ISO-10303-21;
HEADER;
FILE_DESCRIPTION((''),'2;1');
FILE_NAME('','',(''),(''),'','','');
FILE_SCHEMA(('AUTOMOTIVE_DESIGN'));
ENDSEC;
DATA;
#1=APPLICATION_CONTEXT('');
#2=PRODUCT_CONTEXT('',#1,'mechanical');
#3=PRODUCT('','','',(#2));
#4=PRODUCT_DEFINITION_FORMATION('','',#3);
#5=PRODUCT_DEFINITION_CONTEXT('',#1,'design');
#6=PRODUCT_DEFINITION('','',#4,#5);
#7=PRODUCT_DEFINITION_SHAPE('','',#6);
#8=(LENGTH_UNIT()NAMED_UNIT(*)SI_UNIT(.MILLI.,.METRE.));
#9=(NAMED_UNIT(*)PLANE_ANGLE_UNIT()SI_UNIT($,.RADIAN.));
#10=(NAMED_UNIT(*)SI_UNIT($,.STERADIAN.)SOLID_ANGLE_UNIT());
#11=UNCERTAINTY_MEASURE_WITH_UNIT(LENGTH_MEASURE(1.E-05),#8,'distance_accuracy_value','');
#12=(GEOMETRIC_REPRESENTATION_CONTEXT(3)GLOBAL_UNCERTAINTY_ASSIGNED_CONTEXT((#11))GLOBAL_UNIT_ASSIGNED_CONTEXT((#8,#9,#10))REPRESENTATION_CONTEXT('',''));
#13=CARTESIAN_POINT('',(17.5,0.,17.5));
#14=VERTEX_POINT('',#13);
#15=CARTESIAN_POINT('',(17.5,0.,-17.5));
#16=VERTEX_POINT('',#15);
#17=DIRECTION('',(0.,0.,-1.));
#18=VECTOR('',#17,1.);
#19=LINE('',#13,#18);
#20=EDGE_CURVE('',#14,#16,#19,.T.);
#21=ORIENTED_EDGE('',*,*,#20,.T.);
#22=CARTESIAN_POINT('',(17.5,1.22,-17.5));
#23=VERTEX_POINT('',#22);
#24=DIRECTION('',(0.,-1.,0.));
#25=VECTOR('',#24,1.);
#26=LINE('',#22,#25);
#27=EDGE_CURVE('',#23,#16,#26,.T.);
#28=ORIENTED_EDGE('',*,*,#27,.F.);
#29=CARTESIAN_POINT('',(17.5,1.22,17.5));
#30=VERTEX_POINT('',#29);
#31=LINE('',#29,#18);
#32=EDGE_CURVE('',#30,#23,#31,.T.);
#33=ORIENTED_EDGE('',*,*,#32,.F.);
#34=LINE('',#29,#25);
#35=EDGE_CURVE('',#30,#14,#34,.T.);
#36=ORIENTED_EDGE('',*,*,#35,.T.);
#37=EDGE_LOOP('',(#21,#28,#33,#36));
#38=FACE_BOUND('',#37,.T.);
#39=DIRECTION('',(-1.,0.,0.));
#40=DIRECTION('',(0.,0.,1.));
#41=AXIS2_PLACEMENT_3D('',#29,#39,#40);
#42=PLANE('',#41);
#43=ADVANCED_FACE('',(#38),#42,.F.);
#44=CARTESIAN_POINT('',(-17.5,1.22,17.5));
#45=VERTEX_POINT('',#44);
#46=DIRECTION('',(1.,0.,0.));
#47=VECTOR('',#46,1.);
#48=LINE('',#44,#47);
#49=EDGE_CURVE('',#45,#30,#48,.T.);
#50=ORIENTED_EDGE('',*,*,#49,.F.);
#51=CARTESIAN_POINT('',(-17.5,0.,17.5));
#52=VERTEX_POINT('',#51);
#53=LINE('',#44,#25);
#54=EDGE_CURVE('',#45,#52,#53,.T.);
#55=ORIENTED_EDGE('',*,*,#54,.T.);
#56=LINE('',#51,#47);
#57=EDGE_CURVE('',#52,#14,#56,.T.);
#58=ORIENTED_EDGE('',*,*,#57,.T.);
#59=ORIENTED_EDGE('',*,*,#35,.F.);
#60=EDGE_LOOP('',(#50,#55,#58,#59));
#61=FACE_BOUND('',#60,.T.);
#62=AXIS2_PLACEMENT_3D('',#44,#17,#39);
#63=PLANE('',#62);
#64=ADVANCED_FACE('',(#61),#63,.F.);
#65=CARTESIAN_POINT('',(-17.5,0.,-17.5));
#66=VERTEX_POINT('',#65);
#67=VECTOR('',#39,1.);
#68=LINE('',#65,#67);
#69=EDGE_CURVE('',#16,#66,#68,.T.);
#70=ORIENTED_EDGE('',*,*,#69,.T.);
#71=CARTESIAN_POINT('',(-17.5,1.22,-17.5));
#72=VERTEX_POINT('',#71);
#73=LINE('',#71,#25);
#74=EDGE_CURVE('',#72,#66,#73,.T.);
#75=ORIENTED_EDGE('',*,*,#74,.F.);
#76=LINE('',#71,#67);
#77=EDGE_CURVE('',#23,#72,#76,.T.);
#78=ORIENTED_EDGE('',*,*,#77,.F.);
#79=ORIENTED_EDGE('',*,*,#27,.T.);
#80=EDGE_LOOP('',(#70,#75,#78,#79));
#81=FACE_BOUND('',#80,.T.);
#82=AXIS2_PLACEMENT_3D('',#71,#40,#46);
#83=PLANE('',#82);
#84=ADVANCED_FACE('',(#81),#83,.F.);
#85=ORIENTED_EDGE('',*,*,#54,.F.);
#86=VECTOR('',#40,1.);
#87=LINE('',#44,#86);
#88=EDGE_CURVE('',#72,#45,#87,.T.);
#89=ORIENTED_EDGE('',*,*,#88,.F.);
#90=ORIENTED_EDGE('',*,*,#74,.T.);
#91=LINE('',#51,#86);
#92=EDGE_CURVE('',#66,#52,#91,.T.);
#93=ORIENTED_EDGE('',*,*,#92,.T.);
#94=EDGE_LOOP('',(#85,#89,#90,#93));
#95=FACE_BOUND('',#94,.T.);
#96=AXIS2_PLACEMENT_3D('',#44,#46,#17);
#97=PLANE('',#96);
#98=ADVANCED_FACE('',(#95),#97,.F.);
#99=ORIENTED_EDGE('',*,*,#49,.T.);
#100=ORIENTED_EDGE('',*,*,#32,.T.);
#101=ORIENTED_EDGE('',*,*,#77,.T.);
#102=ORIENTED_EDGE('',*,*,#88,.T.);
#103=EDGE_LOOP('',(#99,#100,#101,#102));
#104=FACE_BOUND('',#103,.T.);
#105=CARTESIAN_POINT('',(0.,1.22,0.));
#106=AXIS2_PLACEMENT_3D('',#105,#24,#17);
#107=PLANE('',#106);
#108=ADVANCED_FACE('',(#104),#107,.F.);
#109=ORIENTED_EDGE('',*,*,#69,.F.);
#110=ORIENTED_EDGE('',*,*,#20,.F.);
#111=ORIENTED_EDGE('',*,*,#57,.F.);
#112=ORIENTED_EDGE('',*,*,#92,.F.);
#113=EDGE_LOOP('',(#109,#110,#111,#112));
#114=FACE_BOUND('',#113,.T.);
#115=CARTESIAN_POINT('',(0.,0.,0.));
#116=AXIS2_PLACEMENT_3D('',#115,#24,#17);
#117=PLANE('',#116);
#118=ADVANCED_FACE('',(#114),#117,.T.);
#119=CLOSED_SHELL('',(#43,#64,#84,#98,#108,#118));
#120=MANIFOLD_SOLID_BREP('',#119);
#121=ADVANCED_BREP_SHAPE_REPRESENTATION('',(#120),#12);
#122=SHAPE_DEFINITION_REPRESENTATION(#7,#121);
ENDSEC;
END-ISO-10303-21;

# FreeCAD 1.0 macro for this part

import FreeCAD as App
import Part
import Sketcher
Q = App.Units.Quantity


def add_polygon(sketch, points):
    """Adds a closed chain of lines whose ends are joined by coincident constraints."""
    first, n = sketch.GeometryCount, len(points)
    for a, b in zip(points, points[1:] + points[:1]):
        sketch.addGeometry(Part.LineSegment(App.Vector(*a, 0), App.Vector(*b, 0)), False)
    for i in range(n):
        sketch.addConstraint(Sketcher.Constraint("Coincident", first + i, 2, first + (i + 1) % n, 1))

doc = App.newDocument("Part")
params = doc.addObject("Spreadsheet::Sheet", "Params")
for row, (alias, value) in enumerate([
    ("sketch1_width", "35 mm"),
    ("pad1_length", "1.22 mm"),
], start=1):
    params.set(f"A{row}", alias)
    params.set(f"B{row}", "=" + value)
    params.setAlias(f"B{row}", alias)

body = doc.addObject("PartDesign::Body", "Body")

# Sketch on XZ plane
sketch1 = body.newObject("Sketcher::SketchObject", "Sketch")
sketch1.AttachmentSupport = (doc.getObject("XZ_Plane"), [""])
sketch1.MapMode = "FlatFace"
add_polygon(sketch1, [(-18, -18), (-18, 18), (18, 18), (18, -18)])  # lines 0-3
sketch1.addConstraint([
    Sketcher.Constraint("Vertical", 0),
    Sketcher.Constraint("Horizontal", 1),
    Sketcher.Constraint("Vertical", 2),
    Sketcher.Constraint("Horizontal", 3),
    Sketcher.Constraint("Symmetric", 0, 2, 2, 2, -1, 1),
    Sketcher.Constraint("Equal", 3, 0),
    Sketcher.Constraint("DistanceX", 1, 1, 1, 2, Q("35 mm")),
])
sketch1.setExpression("Constraints[10]", "Params.sketch1_width")
pad1 = body.newObject("PartDesign::Pad", "Pad")
pad1.Profile = sketch1
pad1.setExpression("Length", "Params.pad1_length")
pad1.Reversed = True

doc.recompute()
